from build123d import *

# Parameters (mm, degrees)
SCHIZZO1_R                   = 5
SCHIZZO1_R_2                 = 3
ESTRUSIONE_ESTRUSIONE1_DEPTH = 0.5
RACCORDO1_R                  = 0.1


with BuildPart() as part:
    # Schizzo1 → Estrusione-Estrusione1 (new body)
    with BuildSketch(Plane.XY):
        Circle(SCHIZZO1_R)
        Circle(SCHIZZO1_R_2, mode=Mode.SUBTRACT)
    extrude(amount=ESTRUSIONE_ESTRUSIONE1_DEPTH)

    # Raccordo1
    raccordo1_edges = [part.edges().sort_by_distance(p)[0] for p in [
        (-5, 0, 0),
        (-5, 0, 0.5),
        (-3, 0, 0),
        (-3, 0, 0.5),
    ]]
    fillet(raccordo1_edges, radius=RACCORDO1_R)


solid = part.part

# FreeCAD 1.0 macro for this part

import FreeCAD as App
import Part
import Sketcher
from FreeCAD import Vector


def edges_at(feature, points):
    """Names of the edges that pass closest to the given points."""
    edges = feature.Shape.Edges
    near = lambda p: min(range(len(edges)), key=lambda i: edges[i].distToShape(Part.Vertex(*p))[0])
    return sorted({f"Edge{near(p) + 1}" for p in points})

doc = App.newDocument("Part")
body = doc.addObject("PartDesign::Body", "Body")

# Sketch on XY plane
sketch1 = body.newObject("Sketcher::SketchObject", "Sketch")
sketch1.AttachmentSupport = (doc.getObject("XY_Plane"), [""])
sketch1.MapMode = "FlatFace"
sketch1.addGeometry(Part.Circle(Vector(0, 0, 0), Vector(0, 0, 1), 5), False)
sketch1.addGeometry(Part.Circle(Vector(0, 0, 0), Vector(0, 0, 1), 3), False)
sketch1.addConstraint(Sketcher.Constraint("Coincident", 0, 3, -1, 1))
sketch1.addConstraint(Sketcher.Constraint("Coincident", 1, 3, -1, 1))
sketch1.addConstraint(Sketcher.Constraint("Diameter", 0, 10.0))
sketch1.addConstraint(Sketcher.Constraint("Diameter", 1, 6.0))
pad1 = body.newObject("PartDesign::Pad", "Pad")
pad1.Profile = sketch1
pad1.Length = 0.5
doc.recompute()

fillet = body.newObject("PartDesign::Fillet", "Fillet")
fillet.Base = (pad1, edges_at(pad1, [
    (-5, 0, 0),
    (-5, 0, 0.5),
    (-3, 0, 0),
    (-3, 0, 0.5),
]))
fillet.Radius = 0.1

doc.recompute()
